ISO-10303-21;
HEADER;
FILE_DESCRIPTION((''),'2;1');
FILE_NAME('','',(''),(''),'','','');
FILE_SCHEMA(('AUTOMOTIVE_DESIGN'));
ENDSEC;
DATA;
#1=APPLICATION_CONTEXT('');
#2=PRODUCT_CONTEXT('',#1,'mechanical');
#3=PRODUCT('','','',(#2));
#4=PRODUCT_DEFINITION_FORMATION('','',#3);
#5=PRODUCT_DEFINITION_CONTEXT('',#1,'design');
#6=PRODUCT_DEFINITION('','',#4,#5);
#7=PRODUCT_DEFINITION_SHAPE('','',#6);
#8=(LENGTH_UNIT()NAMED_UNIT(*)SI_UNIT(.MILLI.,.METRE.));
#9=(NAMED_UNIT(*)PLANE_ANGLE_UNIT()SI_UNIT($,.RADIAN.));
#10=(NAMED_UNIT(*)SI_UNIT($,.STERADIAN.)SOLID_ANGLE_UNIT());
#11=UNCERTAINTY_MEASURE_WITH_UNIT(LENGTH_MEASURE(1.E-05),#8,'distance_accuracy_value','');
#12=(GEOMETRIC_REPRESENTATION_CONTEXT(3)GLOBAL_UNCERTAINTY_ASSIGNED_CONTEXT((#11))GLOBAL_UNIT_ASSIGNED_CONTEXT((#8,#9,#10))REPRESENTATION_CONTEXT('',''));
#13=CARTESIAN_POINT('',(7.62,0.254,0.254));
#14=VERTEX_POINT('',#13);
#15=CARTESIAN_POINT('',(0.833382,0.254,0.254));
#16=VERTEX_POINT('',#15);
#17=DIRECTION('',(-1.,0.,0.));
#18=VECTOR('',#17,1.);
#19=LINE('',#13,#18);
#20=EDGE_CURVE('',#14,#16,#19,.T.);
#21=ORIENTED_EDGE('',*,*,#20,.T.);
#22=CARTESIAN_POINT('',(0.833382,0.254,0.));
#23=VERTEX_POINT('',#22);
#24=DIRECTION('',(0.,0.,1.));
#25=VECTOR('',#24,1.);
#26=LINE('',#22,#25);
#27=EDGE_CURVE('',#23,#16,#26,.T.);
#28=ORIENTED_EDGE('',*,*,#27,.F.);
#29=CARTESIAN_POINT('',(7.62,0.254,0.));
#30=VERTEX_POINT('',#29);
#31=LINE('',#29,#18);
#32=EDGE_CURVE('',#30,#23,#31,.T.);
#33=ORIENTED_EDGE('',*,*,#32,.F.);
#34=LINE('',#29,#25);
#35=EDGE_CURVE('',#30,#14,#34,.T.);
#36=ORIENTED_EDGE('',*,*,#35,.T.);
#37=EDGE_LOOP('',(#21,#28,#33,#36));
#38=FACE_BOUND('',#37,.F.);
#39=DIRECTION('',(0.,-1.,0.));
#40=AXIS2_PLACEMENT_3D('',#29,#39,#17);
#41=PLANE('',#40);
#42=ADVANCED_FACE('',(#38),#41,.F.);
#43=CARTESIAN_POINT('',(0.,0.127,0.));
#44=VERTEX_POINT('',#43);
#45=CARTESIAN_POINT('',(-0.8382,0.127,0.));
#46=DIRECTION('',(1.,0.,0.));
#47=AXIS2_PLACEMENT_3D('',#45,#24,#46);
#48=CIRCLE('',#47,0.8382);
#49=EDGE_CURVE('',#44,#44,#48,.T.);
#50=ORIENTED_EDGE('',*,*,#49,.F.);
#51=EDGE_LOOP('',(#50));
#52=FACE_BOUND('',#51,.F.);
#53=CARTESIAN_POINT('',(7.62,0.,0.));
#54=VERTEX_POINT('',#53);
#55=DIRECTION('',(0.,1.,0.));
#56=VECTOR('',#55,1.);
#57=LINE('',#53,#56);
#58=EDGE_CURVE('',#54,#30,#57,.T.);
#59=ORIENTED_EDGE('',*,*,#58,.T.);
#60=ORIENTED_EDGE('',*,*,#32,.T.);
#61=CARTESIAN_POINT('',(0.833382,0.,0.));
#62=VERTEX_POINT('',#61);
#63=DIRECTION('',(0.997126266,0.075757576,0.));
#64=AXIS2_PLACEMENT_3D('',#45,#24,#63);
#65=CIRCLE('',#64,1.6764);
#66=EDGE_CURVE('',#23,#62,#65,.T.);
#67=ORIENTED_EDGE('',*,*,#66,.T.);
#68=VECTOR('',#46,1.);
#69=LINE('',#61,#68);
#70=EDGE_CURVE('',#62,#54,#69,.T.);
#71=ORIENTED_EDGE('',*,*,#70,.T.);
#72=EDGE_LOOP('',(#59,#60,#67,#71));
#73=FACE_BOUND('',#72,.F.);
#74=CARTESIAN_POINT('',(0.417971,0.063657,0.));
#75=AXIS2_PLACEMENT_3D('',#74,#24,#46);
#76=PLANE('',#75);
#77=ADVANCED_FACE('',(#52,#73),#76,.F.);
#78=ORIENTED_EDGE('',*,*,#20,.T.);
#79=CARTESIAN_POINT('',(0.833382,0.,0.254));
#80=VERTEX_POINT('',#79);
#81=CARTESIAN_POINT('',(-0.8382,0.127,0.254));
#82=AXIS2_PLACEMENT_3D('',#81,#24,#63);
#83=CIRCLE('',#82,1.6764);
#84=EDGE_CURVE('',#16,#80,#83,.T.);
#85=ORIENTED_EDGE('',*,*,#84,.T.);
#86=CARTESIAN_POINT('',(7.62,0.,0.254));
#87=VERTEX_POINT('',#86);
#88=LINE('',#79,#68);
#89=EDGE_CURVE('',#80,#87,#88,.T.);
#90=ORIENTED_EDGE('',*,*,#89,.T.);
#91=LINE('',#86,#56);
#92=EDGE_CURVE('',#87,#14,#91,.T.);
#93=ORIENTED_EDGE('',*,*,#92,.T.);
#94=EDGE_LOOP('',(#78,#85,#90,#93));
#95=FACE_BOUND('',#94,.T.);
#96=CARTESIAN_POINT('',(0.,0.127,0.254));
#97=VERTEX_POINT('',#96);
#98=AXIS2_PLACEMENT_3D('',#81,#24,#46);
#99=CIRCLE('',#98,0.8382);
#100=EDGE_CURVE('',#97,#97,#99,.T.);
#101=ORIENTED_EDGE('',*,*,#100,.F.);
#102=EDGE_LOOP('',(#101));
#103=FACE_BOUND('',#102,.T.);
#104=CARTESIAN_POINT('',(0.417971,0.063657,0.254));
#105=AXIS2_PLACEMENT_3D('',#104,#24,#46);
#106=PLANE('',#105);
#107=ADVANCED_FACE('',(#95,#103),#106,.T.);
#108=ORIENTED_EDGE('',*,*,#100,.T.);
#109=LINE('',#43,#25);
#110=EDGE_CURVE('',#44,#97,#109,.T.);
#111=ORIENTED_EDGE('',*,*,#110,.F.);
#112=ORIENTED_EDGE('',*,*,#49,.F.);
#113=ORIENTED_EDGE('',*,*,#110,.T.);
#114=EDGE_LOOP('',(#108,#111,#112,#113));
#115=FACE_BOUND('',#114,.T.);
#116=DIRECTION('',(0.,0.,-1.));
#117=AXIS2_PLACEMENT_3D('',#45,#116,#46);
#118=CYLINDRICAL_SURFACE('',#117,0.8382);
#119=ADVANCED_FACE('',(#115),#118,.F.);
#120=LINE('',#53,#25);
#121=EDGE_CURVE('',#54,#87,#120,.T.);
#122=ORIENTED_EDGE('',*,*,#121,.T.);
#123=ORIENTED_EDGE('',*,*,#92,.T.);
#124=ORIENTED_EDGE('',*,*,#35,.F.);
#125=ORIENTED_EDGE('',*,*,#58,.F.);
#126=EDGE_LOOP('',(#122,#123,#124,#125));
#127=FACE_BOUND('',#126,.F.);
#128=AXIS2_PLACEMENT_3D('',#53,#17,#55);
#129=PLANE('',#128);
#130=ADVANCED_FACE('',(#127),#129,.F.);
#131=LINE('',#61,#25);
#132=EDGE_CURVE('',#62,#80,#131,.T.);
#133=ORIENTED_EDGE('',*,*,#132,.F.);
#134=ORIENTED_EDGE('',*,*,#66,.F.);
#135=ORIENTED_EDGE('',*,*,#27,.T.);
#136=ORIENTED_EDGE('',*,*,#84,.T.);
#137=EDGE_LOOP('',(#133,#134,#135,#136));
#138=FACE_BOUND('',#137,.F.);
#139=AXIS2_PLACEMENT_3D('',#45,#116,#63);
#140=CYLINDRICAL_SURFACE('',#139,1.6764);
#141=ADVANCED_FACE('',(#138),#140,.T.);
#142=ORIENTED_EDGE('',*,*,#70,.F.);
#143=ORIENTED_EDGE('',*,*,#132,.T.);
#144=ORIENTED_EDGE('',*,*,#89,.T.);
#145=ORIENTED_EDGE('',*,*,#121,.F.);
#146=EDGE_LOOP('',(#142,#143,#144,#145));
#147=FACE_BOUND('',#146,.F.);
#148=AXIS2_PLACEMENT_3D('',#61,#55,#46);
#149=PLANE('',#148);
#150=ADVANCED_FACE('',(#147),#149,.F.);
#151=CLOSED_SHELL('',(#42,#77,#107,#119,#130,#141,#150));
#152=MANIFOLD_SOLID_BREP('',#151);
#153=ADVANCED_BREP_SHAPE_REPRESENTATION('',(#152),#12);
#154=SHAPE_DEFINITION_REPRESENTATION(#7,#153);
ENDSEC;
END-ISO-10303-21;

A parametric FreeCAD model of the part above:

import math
import FreeCAD as App
import Part
import Sketcher
Q = App.Units.Quantity

doc = App.newDocument("Part")
params = doc.addObject("Spreadsheet::Sheet", "Params")
for row, (alias, value) in enumerate([
    ("sketch1_diameter", "0.066 in"),
    ("sketch1_radius", "0.066 in"),
    ("sketch1_height", "0.01 in"),
    ("pad1_length", "0.01 in"),
], start=1):
    params.set(f"A{row}", alias)
    params.set(f"B{row}", "=" + value)
    params.setAlias(f"B{row}", alias)

body = doc.addObject("PartDesign::Body", "Body")

# Sketch on XY plane
sketch1 = body.newObject("Sketcher::SketchObject", "Sketch")
sketch1.AttachmentSupport = (doc.getObject("XY_Plane"), [""])
sketch1.MapMode = "FlatFace"
sketch1.addGeometry([
    Part.LineSegment(App.Vector(7.62, 0.25, 0), App.Vector(0.83, 0.25, 0)),  # 0
    Part.ArcOfCircle(Part.Circle(App.Vector(-0.84, 0.13, 0), App.Vector(0, 0, 1), 1.68), math.radians(4), math.radians(356)),  # 1
    Part.LineSegment(App.Vector(0.83, 0, 0), App.Vector(7.62, 0, 0)),  # 2
    Part.LineSegment(App.Vector(7.62, 0, 0), App.Vector(7.62, 0.25, 0)),  # 3
    Part.Circle(App.Vector(-0.84, 0.13, 0), App.Vector(0, 0, 1), 0.84),  # 4
], False)
sketch1.addConstraint([
    Sketcher.Constraint("Coincident", 0, 2, 1, 1),
    Sketcher.Constraint("Coincident", 1, 2, 2, 1),
    Sketcher.Constraint("Coincident", 2, 2, 3, 1),
    Sketcher.Constraint("Coincident", 3, 2, 0, 1),
    Sketcher.Constraint("Horizontal", 0),
    Sketcher.Constraint("Horizontal", 2),
    Sketcher.Constraint("Vertical", 3),
    Sketcher.Constraint("Coincident", 4, 3, 1, 3),
    Sketcher.Constraint("PointOnObject", 1, 2, -1),
    Sketcher.Constraint("Vertical", 0, 2, 1, 2),
    Sketcher.Constraint("Diameter", 4, Q("0.066 in")),
    Sketcher.Constraint("Radius", 1, Q("0.066 in")),
    Sketcher.Constraint("DistanceY", 3, 1, 3, 2, Q("0.01 in")),
    Sketcher.Constraint("DistanceX", -1, 1, 2, 2, Q("0.3 in")),
    Sketcher.Constraint("DistanceX", 1, 3, -1, 1, Q("0.033 in")),
])
sketch1.setExpression("Constraints[10]", "Params.sketch1_diameter")
sketch1.setExpression("Constraints[11]", "Params.sketch1_radius")
sketch1.setExpression("Constraints[12]", "Params.sketch1_height")
pad1 = body.newObject("PartDesign::Pad", "Pad")
pad1.Profile = sketch1
pad1.setExpression("Length", "Params.pad1_length")

doc.recompute()
